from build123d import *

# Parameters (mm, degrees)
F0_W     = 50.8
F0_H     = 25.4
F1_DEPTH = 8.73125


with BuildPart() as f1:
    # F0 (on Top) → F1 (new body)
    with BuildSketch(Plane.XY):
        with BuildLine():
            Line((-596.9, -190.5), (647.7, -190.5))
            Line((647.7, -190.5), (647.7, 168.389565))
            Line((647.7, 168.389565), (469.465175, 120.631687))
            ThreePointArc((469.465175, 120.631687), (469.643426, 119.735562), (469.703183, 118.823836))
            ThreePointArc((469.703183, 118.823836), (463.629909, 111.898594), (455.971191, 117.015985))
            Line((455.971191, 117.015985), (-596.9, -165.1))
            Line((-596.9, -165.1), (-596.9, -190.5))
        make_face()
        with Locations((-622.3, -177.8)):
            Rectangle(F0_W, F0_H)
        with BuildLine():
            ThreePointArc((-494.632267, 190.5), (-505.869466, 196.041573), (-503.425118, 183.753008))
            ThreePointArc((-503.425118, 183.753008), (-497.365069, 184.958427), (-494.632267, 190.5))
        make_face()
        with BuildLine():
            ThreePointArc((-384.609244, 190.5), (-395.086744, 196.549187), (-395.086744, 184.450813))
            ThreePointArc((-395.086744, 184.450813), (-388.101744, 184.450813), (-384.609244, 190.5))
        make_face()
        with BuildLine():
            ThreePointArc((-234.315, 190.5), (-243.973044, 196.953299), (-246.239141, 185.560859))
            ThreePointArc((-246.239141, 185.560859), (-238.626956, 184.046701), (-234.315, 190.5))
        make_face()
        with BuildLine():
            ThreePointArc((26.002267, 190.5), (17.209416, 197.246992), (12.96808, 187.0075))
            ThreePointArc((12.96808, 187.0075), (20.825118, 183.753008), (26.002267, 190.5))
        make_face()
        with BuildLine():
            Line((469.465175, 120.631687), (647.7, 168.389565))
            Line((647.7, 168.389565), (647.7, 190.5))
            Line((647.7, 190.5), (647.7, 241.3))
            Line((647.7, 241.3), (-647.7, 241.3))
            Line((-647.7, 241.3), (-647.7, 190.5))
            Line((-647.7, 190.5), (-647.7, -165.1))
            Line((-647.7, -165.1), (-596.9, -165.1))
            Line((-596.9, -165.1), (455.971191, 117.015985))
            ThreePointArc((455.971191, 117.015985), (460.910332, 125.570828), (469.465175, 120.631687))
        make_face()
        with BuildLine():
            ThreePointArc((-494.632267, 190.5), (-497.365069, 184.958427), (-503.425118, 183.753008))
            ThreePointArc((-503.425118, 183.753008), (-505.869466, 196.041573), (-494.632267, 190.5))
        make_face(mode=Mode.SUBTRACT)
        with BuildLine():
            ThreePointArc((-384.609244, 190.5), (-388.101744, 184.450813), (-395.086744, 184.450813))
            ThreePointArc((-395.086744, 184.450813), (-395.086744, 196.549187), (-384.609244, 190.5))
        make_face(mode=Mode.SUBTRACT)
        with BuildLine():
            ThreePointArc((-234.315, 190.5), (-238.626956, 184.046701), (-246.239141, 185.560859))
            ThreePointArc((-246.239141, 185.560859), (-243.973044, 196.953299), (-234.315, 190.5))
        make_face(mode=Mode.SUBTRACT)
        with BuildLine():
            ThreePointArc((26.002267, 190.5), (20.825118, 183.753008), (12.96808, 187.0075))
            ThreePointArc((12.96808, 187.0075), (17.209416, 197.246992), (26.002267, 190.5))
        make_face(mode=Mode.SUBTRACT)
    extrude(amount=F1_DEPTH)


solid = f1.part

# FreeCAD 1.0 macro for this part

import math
import FreeCAD as App
import Part
import Sketcher

V = App.Vector
Q = App.Units.Quantity

doc = App.newDocument("Part")
body = doc.addObject("PartDesign::Body", "Body")

# Sketch on XY plane
sketch1 = body.newObject("Sketcher::SketchObject", "Sketch")
sketch1.AttachmentSupport = (doc.getObject("XY_Plane"), [""])
sketch1.MapMode = "FlatFace"
sketch1.addGeometry(Part.LineSegment(V(647.7, -190.5, 0), V(647.7, 241.3, 0)), False)
sketch1.addGeometry(Part.LineSegment(V(647.7, 241.3, 0), V(-647.7, 241.3, 0)), False)
sketch1.addGeometry(Part.LineSegment(V(-647.7, 241.3, 0), V(-647.7, -190.5, 0)), False)
sketch1.addGeometry(Part.LineSegment(V(-647.7, -190.5, 0), V(647.7, -190.5, 0)), False)
sketch1.addGeometry(Part.ArcOfCircle(Part.Circle(V(462.71826, 118.823846, 0), V(0, 0, 1), 6.984923), math.radians(-0.000086), math.radians(15.00008)), False)
sketch1.addGeometry(Part.ArcOfCircle(Part.Circle(V(462.718183, 118.823836, 0), V(0, 0, 1), 6.985), math.radians(-164.999997), math.radians(-0.000003)), False)
sketch1.addGeometry(Part.ArcOfCircle(Part.Circle(V(462.718183, 118.823836, 0), V(0, 0, 1), 6.985), math.radians(15), math.radians(195)), False)
sketch1.addGeometry(Part.ArcOfCircle(Part.Circle(V(-501.617267, 190.5, 0), V(0, 0, 1), 6.985), math.radians(0), math.radians(255.000001)), False)
sketch1.addGeometry(Part.ArcOfCircle(Part.Circle(V(-501.617268, 190.500001, 0), V(0, 0, 1), 6.985001), math.radians(-104.999992), math.radians(-0.000007)), False)
sketch1.addGeometry(Part.ArcOfCircle(Part.Circle(V(-391.594244, 190.5, 0), V(0, 0, 1), 6.985), math.radians(0), math.radians(239.999996)), False)
sketch1.addGeometry(Part.ArcOfCircle(Part.Circle(V(-391.594244, 190.5, 0), V(0, 0, 1), 6.985), math.radians(-120), math.radians(-0.000004)), False)
sketch1.addGeometry(Part.ArcOfCircle(Part.Circle(V(-241.3, 190.5, 0), V(0, 0, 1), 6.985), math.radians(-0.000002), math.radians(225.000003)), False)
sketch1.addGeometry(Part.ArcOfCircle(Part.Circle(V(-241.3, 190.499999, 0), V(0, 0, 1), 6.985), math.radians(-135.000005), math.radians(0.000005)), False)
sketch1.addGeometry(Part.ArcOfCircle(Part.Circle(V(19.017267, 190.5, 0), V(0, 0, 1), 6.985), math.radians(-0.000002), math.radians(210.000003)), False)
sketch1.addGeometry(Part.ArcOfCircle(Part.Circle(V(19.017267, 190.5, 0), V(0, 0, 1), 6.985), math.radians(-150.000002), math.radians(0.000003)), False)
sketch1.addConstraint(Sketcher.Constraint("Coincident", 0, 2, 1, 1))
sketch1.addConstraint(Sketcher.Constraint("Coincident", 1, 2, 2, 1))
sketch1.addConstraint(Sketcher.Constraint("Coincident", 2, 2, 3, 1))
sketch1.addConstraint(Sketcher.Constraint("Coincident", 3, 2, 0, 1))
sketch1.addConstraint(Sketcher.Constraint("Coincident", 4, 1, 5, 2))
sketch1.addConstraint(Sketcher.Constraint("Coincident", 5, 1, 6, 2))
sketch1.addConstraint(Sketcher.Constraint("Coincident", 6, 1, 4, 2))
sketch1.addConstraint(Sketcher.Constraint("Coincident", 7, 1, 8, 2))
sketch1.addConstraint(Sketcher.Constraint("Coincident", 8, 1, 7, 2))
sketch1.addConstraint(Sketcher.Constraint("Coincident", 9, 1, 10, 2))
sketch1.addConstraint(Sketcher.Constraint("Coincident", 10, 1, 9, 2))
sketch1.addConstraint(Sketcher.Constraint("Coincident", 11, 1, 12, 2))
sketch1.addConstraint(Sketcher.Constraint("Coincident", 12, 1, 11, 2))
sketch1.addConstraint(Sketcher.Constraint("Coincident", 13, 1, 14, 2))
sketch1.addConstraint(Sketcher.Constraint("Coincident", 14, 1, 13, 2))
sketch1.addConstraint(Sketcher.Constraint("Vertical", 0))
sketch1.addConstraint(Sketcher.Constraint("Horizontal", 1))
sketch1.addConstraint(Sketcher.Constraint("Vertical", 2))
sketch1.addConstraint(Sketcher.Constraint("Horizontal", 3))
sketch1.addConstraint(Sketcher.Constraint("Coincident", 6, 3, 5, 3))
sketch1.addConstraint(Sketcher.Constraint("DistanceX", 1, 2, 1, 1, Q("51 in")))
sketch1.addConstraint(Sketcher.Constraint("DistanceY", 0, 1, 0, 2, Q("17 in")))
sketch1.addConstraint(Sketcher.Constraint("Radius", 5, Q("0.275 in")))
sketch1.addConstraint(Sketcher.Constraint("Radius", 7, Q("0.275 in")))
sketch1.addConstraint(Sketcher.Constraint("Radius", 8, Q("0.275 in")))
sketch1.addConstraint(Sketcher.Constraint("Radius", 9, Q("0.275 in")))
sketch1.addConstraint(Sketcher.Constraint("Radius", 10, Q("0.275 in")))
sketch1.addConstraint(Sketcher.Constraint("Radius", 11, Q("0.275 in")))
sketch1.addConstraint(Sketcher.Constraint("Radius", 12, Q("0.275 in")))
sketch1.addConstraint(Sketcher.Constraint("Radius", 13, Q("0.275 in")))
sketch1.addConstraint(Sketcher.Constraint("Radius", 14, Q("0.275 in")))
sketch1.addConstraint(Sketcher.Constraint("DistanceY", 14, 3, 0, 2, Q("2 in")))
sketch1.addConstraint(Sketcher.Constraint("DistanceY", 8, 3, 1, 2, Q("2 in")))
sketch1.addConstraint(Sketcher.Constraint("DistanceY", 10, 3, 1, 2, Q("2 in")))
sketch1.addConstraint(Sketcher.Constraint("DistanceX", 1, 2, 11, 3, Q("16 in")))
sketch1.addConstraint(Sketcher.Constraint("DistanceY", 11, 3, 1, 2, Q("2 in")))
sketch1.addConstraint(Sketcher.Constraint("DistanceY", 7, 1, 1, 2, Q("2 in")))
sketch1.addConstraint(Sketcher.Constraint("DistanceY", -1, 1, 7, 3, Q("7.5 in")))
sketch1.addConstraint(Sketcher.Constraint("DistanceX", 11, 3, -1, 1, Q("9.5 in")))
sketch1.addConstraint(Sketcher.Constraint("DistanceY", -1, 1, 9, 1, Q("7.5 in")))
sketch1.addConstraint(Sketcher.Constraint("DistanceY", -1, 1, 11, 1, Q("7.5 in")))
sketch1.addConstraint(Sketcher.Constraint("DistanceY", -1, 1, 13, 1, Q("7.5 in")))
sketch1.addConstraint(Sketcher.Constraint("DistanceY", -1, 1, 14, 1, Q("7.3625 in")))
sketch1.addConstraint(Sketcher.Constraint("Radius", 4, Q("6.984923 mm")))
sketch1.addConstraint(Sketcher.Constraint("DistanceX", 10, 1, 9, 3, Q("0.1375 in")))
sketch1.addConstraint(Sketcher.Constraint("DistanceY", 5, 1, 6, 1, Q("3.615702 mm")))
sketch1.addConstraint(Sketcher.Constraint("DistanceX", -1, 1, 4, 3, Q("462.71826 mm")))
sketch1.addConstraint(Sketcher.Constraint("DistanceX", -1, 1, 5, 1, Q("455.971191 mm")))
sketch1.addConstraint(Sketcher.Constraint("DistanceX", 8, 1, -1, 1, Q("503.425118 mm")))
sketch1.addConstraint(Sketcher.Constraint("DistanceX", 12, 1, -1, 1, Q("246.239141 mm")))
sketch1.addConstraint(Sketcher.Constraint("DistanceX", -1, 1, 14, 1, Q("12.96808 mm")))
sketch1.addConstraint(Sketcher.Constraint("DistanceX", 7, 3, 5, 3, Q("964.33545 mm")))
sketch1.addConstraint(Sketcher.Constraint("DistanceX", 9, 3, 13, 3, Q("410.611511 mm")))
sketch1.addConstraint(Sketcher.Constraint("DistanceY", 5, 1, 4, 1, Q("1.807851 mm")))
sketch1.addConstraint(Sketcher.Constraint("DistanceY", -1, 1, 4, 3, Q("118.823846 mm")))
pad1 = body.newObject("PartDesign::Pad", "Pad")
pad1.Profile = sketch1
pad1.Length = Q("0.34375 in")

doc.recompute()
